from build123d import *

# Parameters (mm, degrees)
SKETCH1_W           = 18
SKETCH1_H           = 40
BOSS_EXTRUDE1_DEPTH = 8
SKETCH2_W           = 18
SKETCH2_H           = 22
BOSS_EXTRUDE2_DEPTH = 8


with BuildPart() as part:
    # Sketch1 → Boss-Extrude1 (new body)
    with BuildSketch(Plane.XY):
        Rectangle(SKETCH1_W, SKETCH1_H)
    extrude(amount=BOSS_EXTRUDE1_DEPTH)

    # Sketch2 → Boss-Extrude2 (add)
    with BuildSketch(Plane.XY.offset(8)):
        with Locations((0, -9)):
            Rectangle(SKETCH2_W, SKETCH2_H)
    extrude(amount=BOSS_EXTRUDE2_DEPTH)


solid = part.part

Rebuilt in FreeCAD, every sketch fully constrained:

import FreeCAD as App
import Part
import Sketcher
from FreeCAD import Vector


def add_polygon(sketch, points):
    """Adds a closed chain of lines whose ends are joined by coincident constraints."""
    first, n = sketch.GeometryCount, len(points)
    for a, b in zip(points, points[1:] + points[:1]):
        sketch.addGeometry(Part.LineSegment(App.Vector(*a, 0), App.Vector(*b, 0)), False)
    for i in range(n):
        sketch.addConstraint(Sketcher.Constraint("Coincident", first + i, 2, first + (i + 1) % n, 1))

doc = App.newDocument("Part")
body = doc.addObject("PartDesign::Body", "Body")

sketch1 = doc.addObject("Sketcher::SketchObject", "Sketch")
body.addObject(sketch1)
sketch1.AttachmentSupport = (doc.XY_Plane, [""])
sketch1.MapMode = "FlatFace"
add_polygon(sketch1, [(-9, 20), (-9, -20), (9, -20), (9, 20)])
sketch1.addConstraint(Sketcher.Constraint("Vertical", 0))
sketch1.addConstraint(Sketcher.Constraint("Horizontal", 1))
sketch1.addConstraint(Sketcher.Constraint("Vertical", 2))
sketch1.addConstraint(Sketcher.Constraint("Horizontal", 3))
sketch1.addConstraint(Sketcher.Constraint("Symmetric", 0, 2, 2, 2, -1, 1))
sketch1.addConstraint(Sketcher.Constraint("DistanceX", 1, 1, 1, 2, 18.0))
sketch1.addConstraint(Sketcher.Constraint("DistanceY", 0, 2, 0, 1, 40.0))
pad1 = doc.addObject("PartDesign::Pad", "Pad")
body.addObject(pad1)
pad1.Profile = sketch1
pad1.Length = 8

sketch2 = doc.addObject("Sketcher::SketchObject", "Sketch001")
body.addObject(sketch2)
sketch2.AttachmentSupport = (doc.XY_Plane, [""])
sketch2.MapMode = "FlatFace"
sketch2.AttachmentOffset = App.Placement(Vector(0, 0, 8), App.Rotation())
add_polygon(sketch2, [(-9, 2), (-9, -20), (9, -20), (9, 2)])
sketch2.addConstraint(Sketcher.Constraint("Vertical", 0))
sketch2.addConstraint(Sketcher.Constraint("Horizontal", 1))
sketch2.addConstraint(Sketcher.Constraint("Vertical", 2))
sketch2.addConstraint(Sketcher.Constraint("Horizontal", 3))
sketch2.addConstraint(Sketcher.Constraint("DistanceX", 1, 1, 1, 2, 18.0))
sketch2.addConstraint(Sketcher.Constraint("DistanceY", 0, 2, 0, 1, 22.0))
sketch2.addConstraint(Sketcher.Constraint("DistanceX", 0, 2, -1, 1, 9.0))
sketch2.addConstraint(Sketcher.Constraint("DistanceY", 0, 2, -1, 1, 20.0))
pad2 = doc.addObject("PartDesign::Pad", "Pad001")
body.addObject(pad2)
pad2.Profile = sketch2
pad2.Length = 8

doc.recompute()
